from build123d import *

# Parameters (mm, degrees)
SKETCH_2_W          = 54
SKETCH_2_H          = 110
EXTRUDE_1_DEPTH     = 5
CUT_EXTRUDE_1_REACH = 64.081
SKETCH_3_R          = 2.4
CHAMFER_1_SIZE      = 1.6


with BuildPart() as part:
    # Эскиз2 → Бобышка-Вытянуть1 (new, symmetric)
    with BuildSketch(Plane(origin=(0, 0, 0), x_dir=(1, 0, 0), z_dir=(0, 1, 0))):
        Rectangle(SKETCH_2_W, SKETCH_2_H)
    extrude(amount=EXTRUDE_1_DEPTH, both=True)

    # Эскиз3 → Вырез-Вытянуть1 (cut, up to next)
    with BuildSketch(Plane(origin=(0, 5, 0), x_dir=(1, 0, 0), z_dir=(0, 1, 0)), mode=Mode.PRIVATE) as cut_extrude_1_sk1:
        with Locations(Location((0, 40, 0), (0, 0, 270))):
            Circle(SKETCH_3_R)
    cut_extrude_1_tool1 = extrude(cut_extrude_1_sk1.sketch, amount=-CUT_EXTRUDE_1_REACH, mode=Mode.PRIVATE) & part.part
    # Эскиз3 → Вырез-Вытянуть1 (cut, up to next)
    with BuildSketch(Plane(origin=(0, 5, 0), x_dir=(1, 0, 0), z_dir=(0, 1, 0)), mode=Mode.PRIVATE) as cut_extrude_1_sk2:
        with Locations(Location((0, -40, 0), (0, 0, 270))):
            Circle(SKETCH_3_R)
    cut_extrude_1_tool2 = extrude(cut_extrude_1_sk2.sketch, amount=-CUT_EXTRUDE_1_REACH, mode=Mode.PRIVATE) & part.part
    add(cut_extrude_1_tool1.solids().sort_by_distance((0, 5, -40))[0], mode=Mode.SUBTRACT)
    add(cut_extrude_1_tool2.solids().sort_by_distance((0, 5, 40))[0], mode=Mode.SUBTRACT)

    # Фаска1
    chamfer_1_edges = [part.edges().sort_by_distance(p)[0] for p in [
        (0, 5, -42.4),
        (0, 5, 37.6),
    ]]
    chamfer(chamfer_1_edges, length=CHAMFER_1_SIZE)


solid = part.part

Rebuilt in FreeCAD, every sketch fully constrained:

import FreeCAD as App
import Part
import Sketcher

V = App.Vector
Q = App.Units.Quantity


def edges_at(feature, points):
    """Names of the edges that pass closest to the given points."""
    edges = feature.Shape.Edges
    near = lambda p: min(range(len(edges)), key=lambda i: edges[i].distToShape(Part.Vertex(*p))[0])
    return sorted({f"Edge{near(p) + 1}" for p in points})

doc = App.newDocument("Part")
body = doc.addObject("PartDesign::Body", "Body")

# Sketch on XZ plane
sketch1 = body.newObject("Sketcher::SketchObject", "Sketch")
sketch1.AttachmentSupport = (doc.getObject("XZ_Plane"), [""])
sketch1.MapMode = "FlatFace"
sketch1.addGeometry([
    Part.LineSegment(V(-27, -55, 0), V(-27, 55, 0)),
    Part.LineSegment(V(-27, 55, 0), V(27, 55, 0)),
    Part.LineSegment(V(27, 55, 0), V(27, -55, 0)),
    Part.LineSegment(V(27, -55, 0), V(-27, -55, 0)),
], False)
sketch1.addConstraint([
    Sketcher.Constraint("Coincident", 0, 2, 1, 1),
    Sketcher.Constraint("Coincident", 1, 2, 2, 1),
    Sketcher.Constraint("Coincident", 2, 2, 3, 1),
    Sketcher.Constraint("Coincident", 3, 2, 0, 1),
    Sketcher.Constraint("Vertical", 0),
    Sketcher.Constraint("Horizontal", 1),
    Sketcher.Constraint("Vertical", 2),
    Sketcher.Constraint("Horizontal", 3),
    Sketcher.Constraint("Symmetric", 0, 2, 2, 2, -1, 1),
    Sketcher.Constraint("DistanceX", 1, 1, 1, 2, Q("54 mm")),
    Sketcher.Constraint("DistanceY", 0, 1, 0, 2, Q("110 mm")),
])
pad1 = body.newObject("PartDesign::Pad", "Pad")
pad1.Profile = sketch1
pad1.Length = 10
pad1.Midplane = True

# Sketch on XZ plane
sketch2 = body.newObject("Sketcher::SketchObject", "Sketch001")
sketch2.AttachmentSupport = (doc.getObject("XZ_Plane"), [""])
sketch2.MapMode = "FlatFace"
sketch2.AttachmentOffset = App.Placement(V(0, 0, -5), App.Rotation())
sketch2.addGeometry(Part.Circle(V(0, -40, 0), V(0, 0, 1), 2.4), False)
sketch2.addConstraint([
    Sketcher.Constraint("PointOnObject", 0, 3, -2),
    Sketcher.Constraint("Diameter", 0, Q("4.8 mm")),
    Sketcher.Constraint("DistanceY", 0, 3, -1, 1, Q("40 mm")),
])
pocket1 = body.newObject("PartDesign::Pocket", "Pocket")
pocket1.Profile = sketch2
pocket1.Type = "UpToFirst"
pocket1.Reversed = True

# Sketch on XZ plane
sketch3 = body.newObject("Sketcher::SketchObject", "Sketch002")
sketch3.AttachmentSupport = (doc.getObject("XZ_Plane"), [""])
sketch3.MapMode = "FlatFace"
sketch3.AttachmentOffset = App.Placement(V(0, 0, -5), App.Rotation())
sketch3.addGeometry(Part.Circle(V(0, 40, 0), V(0, 0, 1), 2.4), False)
sketch3.addConstraint([
    Sketcher.Constraint("PointOnObject", 0, 3, -2),
    Sketcher.Constraint("Diameter", 0, Q("4.8 mm")),
    Sketcher.Constraint("DistanceY", -1, 1, 0, 3, Q("40 mm")),
])
pocket2 = body.newObject("PartDesign::Pocket", "Pocket001")
pocket2.Profile = sketch3
pocket2.Type = "UpToFirst"
pocket2.Reversed = True
doc.recompute()

chamfer = body.newObject("PartDesign::Chamfer", "Chamfer")
chamfer.Base = (pocket2, edges_at(pocket2, [(0, 5, -42.4), (0, 5, 37.6)]))
chamfer.Size = 1.6

doc.recompute()
